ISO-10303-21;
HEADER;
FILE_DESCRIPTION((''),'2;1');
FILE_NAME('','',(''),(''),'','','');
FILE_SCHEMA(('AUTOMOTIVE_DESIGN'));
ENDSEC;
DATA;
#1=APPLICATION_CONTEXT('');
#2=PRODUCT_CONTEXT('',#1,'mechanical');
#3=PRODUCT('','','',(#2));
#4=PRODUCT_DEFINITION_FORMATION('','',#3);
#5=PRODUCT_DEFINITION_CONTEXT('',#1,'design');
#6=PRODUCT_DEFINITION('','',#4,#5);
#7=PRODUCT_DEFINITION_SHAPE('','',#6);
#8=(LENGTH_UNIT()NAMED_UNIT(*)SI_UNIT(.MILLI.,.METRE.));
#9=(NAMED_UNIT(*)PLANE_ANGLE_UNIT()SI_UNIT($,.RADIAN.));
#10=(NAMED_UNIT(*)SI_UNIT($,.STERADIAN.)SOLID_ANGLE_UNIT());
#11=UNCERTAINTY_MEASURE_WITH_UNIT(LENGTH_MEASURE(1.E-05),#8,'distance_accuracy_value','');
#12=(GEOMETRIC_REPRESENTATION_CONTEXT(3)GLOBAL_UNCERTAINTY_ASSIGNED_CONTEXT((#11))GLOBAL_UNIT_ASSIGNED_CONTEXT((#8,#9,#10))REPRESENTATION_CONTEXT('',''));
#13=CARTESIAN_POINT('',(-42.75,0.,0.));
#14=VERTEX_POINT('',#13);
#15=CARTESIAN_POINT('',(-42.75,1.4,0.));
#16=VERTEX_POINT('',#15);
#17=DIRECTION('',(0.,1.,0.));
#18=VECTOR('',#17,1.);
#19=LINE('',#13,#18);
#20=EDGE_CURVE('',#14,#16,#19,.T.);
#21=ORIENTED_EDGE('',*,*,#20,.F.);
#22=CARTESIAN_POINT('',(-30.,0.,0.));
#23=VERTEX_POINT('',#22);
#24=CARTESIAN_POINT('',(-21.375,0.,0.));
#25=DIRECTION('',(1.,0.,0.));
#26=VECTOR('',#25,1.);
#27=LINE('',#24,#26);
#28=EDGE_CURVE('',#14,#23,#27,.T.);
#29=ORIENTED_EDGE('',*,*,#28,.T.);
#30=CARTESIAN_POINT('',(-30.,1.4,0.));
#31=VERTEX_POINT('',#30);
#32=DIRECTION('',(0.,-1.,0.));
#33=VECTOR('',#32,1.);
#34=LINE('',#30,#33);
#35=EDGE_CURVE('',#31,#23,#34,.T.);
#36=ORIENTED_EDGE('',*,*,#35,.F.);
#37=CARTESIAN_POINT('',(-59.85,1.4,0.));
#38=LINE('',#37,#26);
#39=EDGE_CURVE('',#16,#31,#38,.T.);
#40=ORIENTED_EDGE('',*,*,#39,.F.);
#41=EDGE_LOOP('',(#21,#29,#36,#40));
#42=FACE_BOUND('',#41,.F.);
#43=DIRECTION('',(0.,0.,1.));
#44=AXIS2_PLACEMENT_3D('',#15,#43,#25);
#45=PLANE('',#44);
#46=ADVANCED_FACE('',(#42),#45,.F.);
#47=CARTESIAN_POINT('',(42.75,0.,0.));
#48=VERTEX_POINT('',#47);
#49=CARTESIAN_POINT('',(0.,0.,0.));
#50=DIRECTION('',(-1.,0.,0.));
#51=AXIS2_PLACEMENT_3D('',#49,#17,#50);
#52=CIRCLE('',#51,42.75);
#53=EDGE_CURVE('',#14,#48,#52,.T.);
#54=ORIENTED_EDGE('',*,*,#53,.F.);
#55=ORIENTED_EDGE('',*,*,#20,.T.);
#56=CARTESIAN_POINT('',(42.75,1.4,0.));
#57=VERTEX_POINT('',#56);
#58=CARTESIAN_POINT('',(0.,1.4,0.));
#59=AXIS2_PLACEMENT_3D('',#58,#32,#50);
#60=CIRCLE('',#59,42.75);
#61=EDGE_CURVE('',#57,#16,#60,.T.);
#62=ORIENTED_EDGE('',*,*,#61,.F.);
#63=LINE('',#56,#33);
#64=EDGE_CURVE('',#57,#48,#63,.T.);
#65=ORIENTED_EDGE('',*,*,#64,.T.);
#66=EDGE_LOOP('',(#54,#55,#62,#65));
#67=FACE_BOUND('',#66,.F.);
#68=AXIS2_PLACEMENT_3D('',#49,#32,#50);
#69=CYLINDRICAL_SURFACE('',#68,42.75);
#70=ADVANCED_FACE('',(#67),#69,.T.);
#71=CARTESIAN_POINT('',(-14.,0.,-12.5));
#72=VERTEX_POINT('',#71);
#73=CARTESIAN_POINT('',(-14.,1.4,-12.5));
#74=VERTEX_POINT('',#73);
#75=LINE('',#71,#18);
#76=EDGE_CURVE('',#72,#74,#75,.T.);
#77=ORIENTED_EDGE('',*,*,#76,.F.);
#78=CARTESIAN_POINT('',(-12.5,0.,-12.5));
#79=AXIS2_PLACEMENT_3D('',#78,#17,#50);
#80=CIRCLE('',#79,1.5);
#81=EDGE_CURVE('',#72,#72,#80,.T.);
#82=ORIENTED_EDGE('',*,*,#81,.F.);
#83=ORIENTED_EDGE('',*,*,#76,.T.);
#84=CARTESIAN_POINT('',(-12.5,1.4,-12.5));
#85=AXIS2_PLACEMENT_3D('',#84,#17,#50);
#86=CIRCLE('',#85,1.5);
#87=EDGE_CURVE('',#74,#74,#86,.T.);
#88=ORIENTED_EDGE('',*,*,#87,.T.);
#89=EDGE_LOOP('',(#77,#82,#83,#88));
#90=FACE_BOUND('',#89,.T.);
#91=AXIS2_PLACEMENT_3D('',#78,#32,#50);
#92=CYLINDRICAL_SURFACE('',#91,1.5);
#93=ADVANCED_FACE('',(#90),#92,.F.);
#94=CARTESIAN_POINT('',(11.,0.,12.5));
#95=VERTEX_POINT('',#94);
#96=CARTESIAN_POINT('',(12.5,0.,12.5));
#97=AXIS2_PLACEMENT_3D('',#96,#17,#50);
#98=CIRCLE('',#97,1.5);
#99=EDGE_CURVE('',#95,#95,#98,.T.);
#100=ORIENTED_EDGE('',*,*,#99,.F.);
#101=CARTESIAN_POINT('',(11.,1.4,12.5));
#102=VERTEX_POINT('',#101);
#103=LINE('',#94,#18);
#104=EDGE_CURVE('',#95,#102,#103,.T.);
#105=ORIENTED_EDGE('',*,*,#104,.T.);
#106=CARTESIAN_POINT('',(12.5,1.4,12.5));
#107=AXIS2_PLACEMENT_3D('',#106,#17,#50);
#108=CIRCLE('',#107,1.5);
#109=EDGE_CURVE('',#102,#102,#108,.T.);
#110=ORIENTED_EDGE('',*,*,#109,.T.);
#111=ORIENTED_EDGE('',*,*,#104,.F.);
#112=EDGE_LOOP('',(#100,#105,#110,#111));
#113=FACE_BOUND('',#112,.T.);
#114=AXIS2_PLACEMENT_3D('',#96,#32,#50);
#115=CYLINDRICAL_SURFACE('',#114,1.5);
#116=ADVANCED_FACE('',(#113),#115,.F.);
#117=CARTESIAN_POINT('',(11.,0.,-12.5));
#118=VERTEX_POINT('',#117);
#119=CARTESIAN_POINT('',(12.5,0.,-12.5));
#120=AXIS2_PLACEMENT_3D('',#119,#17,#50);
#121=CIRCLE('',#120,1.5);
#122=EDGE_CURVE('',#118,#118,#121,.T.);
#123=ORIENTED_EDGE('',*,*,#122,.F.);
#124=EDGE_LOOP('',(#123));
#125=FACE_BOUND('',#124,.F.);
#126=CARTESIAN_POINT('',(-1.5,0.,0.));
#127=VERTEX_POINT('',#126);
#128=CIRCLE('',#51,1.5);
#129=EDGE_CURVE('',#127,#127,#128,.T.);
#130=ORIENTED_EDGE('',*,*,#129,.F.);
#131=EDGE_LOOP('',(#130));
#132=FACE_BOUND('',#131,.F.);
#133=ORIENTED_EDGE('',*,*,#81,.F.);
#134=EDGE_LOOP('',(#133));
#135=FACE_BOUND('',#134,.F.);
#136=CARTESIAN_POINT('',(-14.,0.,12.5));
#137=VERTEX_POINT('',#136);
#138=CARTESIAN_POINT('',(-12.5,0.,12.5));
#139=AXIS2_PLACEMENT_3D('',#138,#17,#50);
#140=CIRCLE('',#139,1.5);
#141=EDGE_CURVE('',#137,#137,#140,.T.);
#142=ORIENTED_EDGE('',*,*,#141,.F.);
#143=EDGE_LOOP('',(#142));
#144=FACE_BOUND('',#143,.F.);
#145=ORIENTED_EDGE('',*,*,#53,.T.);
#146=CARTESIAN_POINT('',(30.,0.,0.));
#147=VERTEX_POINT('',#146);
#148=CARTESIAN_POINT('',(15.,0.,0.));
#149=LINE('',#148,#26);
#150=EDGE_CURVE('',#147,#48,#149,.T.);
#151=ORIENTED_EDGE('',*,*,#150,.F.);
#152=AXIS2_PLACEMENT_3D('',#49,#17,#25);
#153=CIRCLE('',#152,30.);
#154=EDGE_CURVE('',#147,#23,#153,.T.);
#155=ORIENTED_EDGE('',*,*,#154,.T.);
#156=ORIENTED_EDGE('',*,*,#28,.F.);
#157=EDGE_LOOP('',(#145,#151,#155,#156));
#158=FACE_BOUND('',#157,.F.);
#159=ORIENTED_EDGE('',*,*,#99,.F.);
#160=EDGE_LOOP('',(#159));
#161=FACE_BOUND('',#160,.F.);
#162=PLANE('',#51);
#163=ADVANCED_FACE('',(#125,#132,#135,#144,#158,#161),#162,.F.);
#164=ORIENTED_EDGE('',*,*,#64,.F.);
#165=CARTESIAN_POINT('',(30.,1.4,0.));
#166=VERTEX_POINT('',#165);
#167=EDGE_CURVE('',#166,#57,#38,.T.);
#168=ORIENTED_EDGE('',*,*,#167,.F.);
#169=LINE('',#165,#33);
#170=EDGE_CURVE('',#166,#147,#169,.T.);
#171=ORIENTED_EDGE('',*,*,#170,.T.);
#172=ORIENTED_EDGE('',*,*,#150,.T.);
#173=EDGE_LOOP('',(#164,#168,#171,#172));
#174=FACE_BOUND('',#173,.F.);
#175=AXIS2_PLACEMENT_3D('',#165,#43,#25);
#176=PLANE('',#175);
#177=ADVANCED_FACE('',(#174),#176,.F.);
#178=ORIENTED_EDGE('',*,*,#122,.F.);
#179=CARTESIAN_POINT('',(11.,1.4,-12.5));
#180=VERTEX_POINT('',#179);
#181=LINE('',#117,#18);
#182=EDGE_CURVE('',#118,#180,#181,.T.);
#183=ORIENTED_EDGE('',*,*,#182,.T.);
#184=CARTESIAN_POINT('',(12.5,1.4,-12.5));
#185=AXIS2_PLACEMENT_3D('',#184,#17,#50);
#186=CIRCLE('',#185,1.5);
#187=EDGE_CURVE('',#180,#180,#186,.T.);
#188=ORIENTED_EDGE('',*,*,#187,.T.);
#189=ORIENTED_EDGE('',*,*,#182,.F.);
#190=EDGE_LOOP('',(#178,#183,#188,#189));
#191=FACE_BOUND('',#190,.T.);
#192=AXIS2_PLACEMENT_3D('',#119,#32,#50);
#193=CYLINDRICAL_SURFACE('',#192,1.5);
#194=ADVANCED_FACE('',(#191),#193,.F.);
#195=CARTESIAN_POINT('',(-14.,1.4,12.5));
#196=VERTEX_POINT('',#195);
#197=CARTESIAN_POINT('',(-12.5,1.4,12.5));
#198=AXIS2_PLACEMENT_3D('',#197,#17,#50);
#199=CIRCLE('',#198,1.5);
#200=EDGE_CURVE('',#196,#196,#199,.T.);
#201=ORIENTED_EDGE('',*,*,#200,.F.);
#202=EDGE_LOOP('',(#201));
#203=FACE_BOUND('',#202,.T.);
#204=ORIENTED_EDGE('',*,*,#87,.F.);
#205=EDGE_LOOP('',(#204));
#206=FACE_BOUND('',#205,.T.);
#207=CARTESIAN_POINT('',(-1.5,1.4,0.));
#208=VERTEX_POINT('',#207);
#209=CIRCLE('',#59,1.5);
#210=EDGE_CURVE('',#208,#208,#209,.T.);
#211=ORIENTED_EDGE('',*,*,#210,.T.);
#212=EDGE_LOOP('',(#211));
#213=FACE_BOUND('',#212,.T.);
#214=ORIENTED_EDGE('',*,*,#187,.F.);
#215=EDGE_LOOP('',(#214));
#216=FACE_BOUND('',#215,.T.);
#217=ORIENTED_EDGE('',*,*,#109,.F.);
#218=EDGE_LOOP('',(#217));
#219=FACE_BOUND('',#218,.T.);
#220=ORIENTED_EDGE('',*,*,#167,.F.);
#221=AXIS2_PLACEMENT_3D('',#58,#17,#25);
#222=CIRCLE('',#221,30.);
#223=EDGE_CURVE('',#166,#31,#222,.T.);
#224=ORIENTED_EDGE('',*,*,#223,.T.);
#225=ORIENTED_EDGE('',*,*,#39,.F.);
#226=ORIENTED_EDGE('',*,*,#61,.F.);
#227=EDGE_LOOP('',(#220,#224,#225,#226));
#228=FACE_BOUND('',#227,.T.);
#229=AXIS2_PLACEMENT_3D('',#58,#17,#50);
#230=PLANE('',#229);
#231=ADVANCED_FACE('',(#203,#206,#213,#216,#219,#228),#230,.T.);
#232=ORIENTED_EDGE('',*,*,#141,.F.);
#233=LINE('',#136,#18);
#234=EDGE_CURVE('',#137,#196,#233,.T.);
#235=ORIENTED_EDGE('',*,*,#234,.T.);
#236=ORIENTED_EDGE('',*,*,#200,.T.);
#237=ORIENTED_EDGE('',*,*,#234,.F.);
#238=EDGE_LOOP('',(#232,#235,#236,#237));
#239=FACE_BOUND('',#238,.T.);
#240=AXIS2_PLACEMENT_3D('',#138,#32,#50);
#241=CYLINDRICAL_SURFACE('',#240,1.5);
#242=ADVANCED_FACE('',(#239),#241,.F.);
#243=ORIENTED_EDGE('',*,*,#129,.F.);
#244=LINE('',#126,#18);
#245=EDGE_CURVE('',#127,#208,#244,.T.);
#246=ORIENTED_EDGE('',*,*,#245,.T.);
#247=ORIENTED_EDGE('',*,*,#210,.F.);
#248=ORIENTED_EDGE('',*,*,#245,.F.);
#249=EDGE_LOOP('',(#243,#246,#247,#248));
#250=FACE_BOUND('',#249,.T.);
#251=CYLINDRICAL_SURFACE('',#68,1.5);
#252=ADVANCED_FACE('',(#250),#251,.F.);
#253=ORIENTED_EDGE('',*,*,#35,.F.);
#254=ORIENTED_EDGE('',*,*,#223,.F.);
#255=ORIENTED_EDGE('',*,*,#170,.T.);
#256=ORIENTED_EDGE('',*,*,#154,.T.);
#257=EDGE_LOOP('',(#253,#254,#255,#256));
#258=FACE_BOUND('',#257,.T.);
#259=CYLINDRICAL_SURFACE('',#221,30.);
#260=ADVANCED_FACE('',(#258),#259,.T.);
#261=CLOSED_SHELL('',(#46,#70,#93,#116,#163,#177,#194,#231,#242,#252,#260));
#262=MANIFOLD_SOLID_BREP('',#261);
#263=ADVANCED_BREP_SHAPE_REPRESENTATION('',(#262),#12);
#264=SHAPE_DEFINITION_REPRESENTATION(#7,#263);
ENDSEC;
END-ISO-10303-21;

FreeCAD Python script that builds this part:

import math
import FreeCAD as App
import Part
import Sketcher

doc = App.newDocument("Part")
params = doc.addObject("Spreadsheet::Sheet", "Params")
for row, (alias, value) in enumerate([
    ("sketch1_diameter", "3 mm"),
    ("sketch1_diameter2", "85.5 mm"),
    ("pad1_length", "1.4 mm"),
    ("sketch2_radius", "30 mm"),
    ("sketch2_radius2", "42.75 mm"),
    ("pocket1_length", "10 mm"),
], start=1):
    params.set(f"A{row}", alias)
    params.set(f"B{row}", "=" + value)
    params.setAlias(f"B{row}", alias)

body = doc.addObject("PartDesign::Body", "Body")

sketch1 = body.newObject("Sketcher::SketchObject", "Sketch")
sketch1.AttachmentSupport = (doc.getObject("XZ_Plane"), [""])
sketch1.MapMode = "FlatFace"
sketch1.addGeometry(Part.Circle(App.Vector(0, 0, 0), App.Vector(0, 0, 1), 42.8), False)
sketch1.addGeometry(Part.Circle(App.Vector(0, 0, 0), App.Vector(0, 0, 1), 1.5), False)
sketch1.addGeometry(Part.Circle(App.Vector(-12.5, -12.5, 0), App.Vector(0, 0, 1), 1.5), False)
sketch1.addGeometry(Part.Circle(App.Vector(12.5, -12.5, 0), App.Vector(0, 0, 1), 1.5), False)
sketch1.addGeometry(Part.Circle(App.Vector(-12.5, 12.5, 0), App.Vector(0, 0, 1), 1.5), False)
sketch1.addGeometry(Part.Circle(App.Vector(12.5, 12.5, 0), App.Vector(0, 0, 1), 1.5), False)
sketch1.addConstraint(Sketcher.Constraint("Coincident", 0, 3, -1, 1))
sketch1.addConstraint(Sketcher.Constraint("Coincident", 1, 3, -1, 1))
sketch1.addConstraint(Sketcher.Constraint("Equal", 1, 2))
sketch1.addConstraint(Sketcher.Constraint("Equal", 2, 3))
sketch1.addConstraint(Sketcher.Constraint("Equal", 3, 4))
sketch1.addConstraint(Sketcher.Constraint("Equal", 4, 5))
sketch1.addConstraint(Sketcher.Constraint("Symmetric", 3, 3, 4, 3, -1, 1))
sketch1.addConstraint(Sketcher.Constraint("Symmetric", 2, 3, 5, 3, -1, 1))
sketch1.addConstraint(Sketcher.Constraint("Symmetric", 2, 3, 3, 3, -2))
sketch1.addConstraint(Sketcher.Constraint("Diameter", 1, 3.0))
sketch1.addConstraint(Sketcher.Constraint("Diameter", 0, 85.5))
sketch1.addConstraint(Sketcher.Constraint("DistanceX", 2, 3, 3, 3, 25.0))
sketch1.addConstraint(Sketcher.Constraint("DistanceY", 2, 3, 4, 3, 25.0))
sketch1.setExpression("Constraints[9]", "Params.sketch1_diameter")
sketch1.setExpression("Constraints[10]", "Params.sketch1_diameter2")
pad1 = body.newObject("PartDesign::Pad", "Pad")
pad1.Profile = sketch1
pad1.setExpression("Length", "Params.pad1_length")
pad1.Reversed = True

sketch2 = body.newObject("Sketcher::SketchObject", "Sketch001")
sketch2.AttachmentSupport = (doc.getObject("XZ_Plane"), [""])
sketch2.MapMode = "FlatFace"
sketch2.AttachmentOffset = App.Placement(App.Vector(0, 0, -1.4), App.Rotation())
sketch2.addGeometry(Part.LineSegment(App.Vector(30, 0, 0), App.Vector(43, 0, 0)), False)
sketch2.addGeometry(Part.ArcOfCircle(Part.Circle(App.Vector(0, 0, 0), App.Vector(0, 0, 1), 43), math.radians(180), math.radians(360)), False)
sketch2.addGeometry(Part.LineSegment(App.Vector(-43, 0, 0), App.Vector(-30, 0, 0)), False)
sketch2.addGeometry(Part.ArcOfCircle(Part.Circle(App.Vector(0, 0, 0), App.Vector(0, 0, 1), 30), math.radians(180), math.radians(360)), False)
sketch2.addConstraint(Sketcher.Constraint("Coincident", 0, 2, 1, 2))
sketch2.addConstraint(Sketcher.Constraint("Coincident", 1, 1, 2, 1))
sketch2.addConstraint(Sketcher.Constraint("Coincident", 2, 2, 3, 1))
sketch2.addConstraint(Sketcher.Constraint("Coincident", 3, 2, 0, 1))
sketch2.addConstraint(Sketcher.Constraint("Horizontal", 0))
sketch2.addConstraint(Sketcher.Constraint("Horizontal", 2))
sketch2.addConstraint(Sketcher.Constraint("Coincident", 1, 3, -1, 1))
sketch2.addConstraint(Sketcher.Constraint("Coincident", 3, 3, -1, 1))
sketch2.addConstraint(Sketcher.Constraint("PointOnObject", 0, 2, -1))
sketch2.addConstraint(Sketcher.Constraint("PointOnObject", 1, 1, -1))
sketch2.addConstraint(Sketcher.Constraint("Radius", 3, 30.0))
sketch2.addConstraint(Sketcher.Constraint("Radius", 1, 42.75))
sketch2.setExpression("Constraints[10]", "Params.sketch2_radius")
sketch2.setExpression("Constraints[11]", "Params.sketch2_radius2")
pocket1 = body.newObject("PartDesign::Pocket", "Pocket")
pocket1.Profile = sketch2
pocket1.setExpression("Length", "Params.pocket1_length")
pocket1.Reversed = True

doc.recompute()
